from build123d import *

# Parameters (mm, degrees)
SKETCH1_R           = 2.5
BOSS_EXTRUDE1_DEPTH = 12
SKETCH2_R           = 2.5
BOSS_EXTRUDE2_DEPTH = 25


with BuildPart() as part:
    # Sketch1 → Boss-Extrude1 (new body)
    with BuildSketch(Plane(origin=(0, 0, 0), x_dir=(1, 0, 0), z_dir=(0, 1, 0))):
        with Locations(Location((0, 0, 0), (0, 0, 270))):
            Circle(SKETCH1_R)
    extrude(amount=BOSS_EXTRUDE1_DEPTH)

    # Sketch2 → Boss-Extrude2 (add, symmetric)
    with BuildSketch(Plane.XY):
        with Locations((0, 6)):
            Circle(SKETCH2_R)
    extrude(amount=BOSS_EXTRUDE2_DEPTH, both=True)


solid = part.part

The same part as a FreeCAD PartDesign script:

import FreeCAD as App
import Part
import Sketcher

doc = App.newDocument("Part")
body = doc.addObject("PartDesign::Body", "Body")

sketch1 = body.newObject("Sketcher::SketchObject", "Sketch")
sketch1.AttachmentSupport = (doc.getObject("XZ_Plane"), [""])
sketch1.MapMode = "FlatFace"
sketch1.addGeometry(Part.Circle(App.Vector(0, 0, 0), App.Vector(0, 0, 1), 2.5), False)
sketch1.addConstraint(Sketcher.Constraint("Coincident", 0, 3, -1, 1))
sketch1.addConstraint(Sketcher.Constraint("Diameter", 0, 5.0))
pad1 = body.newObject("PartDesign::Pad", "Pad")
pad1.Profile = sketch1
pad1.Length = 12
pad1.Reversed = True

sketch2 = body.newObject("Sketcher::SketchObject", "Sketch001")
sketch2.AttachmentSupport = (doc.getObject("XY_Plane"), [""])
sketch2.MapMode = "FlatFace"
sketch2.addGeometry(Part.Circle(App.Vector(0, 6, 0), App.Vector(0, 0, 1), 2.5), False)
sketch2.addConstraint(Sketcher.Constraint("PointOnObject", 0, 3, -2))
sketch2.addConstraint(Sketcher.Constraint("Diameter", 0, 5.0))
sketch2.addConstraint(Sketcher.Constraint("DistanceY", -1, 1, 0, 3, 6.0))
pad2 = body.newObject("PartDesign::Pad", "Pad001")
pad2.Profile = sketch2
pad2.Length = 50
pad2.Midplane = True

doc.recompute()
